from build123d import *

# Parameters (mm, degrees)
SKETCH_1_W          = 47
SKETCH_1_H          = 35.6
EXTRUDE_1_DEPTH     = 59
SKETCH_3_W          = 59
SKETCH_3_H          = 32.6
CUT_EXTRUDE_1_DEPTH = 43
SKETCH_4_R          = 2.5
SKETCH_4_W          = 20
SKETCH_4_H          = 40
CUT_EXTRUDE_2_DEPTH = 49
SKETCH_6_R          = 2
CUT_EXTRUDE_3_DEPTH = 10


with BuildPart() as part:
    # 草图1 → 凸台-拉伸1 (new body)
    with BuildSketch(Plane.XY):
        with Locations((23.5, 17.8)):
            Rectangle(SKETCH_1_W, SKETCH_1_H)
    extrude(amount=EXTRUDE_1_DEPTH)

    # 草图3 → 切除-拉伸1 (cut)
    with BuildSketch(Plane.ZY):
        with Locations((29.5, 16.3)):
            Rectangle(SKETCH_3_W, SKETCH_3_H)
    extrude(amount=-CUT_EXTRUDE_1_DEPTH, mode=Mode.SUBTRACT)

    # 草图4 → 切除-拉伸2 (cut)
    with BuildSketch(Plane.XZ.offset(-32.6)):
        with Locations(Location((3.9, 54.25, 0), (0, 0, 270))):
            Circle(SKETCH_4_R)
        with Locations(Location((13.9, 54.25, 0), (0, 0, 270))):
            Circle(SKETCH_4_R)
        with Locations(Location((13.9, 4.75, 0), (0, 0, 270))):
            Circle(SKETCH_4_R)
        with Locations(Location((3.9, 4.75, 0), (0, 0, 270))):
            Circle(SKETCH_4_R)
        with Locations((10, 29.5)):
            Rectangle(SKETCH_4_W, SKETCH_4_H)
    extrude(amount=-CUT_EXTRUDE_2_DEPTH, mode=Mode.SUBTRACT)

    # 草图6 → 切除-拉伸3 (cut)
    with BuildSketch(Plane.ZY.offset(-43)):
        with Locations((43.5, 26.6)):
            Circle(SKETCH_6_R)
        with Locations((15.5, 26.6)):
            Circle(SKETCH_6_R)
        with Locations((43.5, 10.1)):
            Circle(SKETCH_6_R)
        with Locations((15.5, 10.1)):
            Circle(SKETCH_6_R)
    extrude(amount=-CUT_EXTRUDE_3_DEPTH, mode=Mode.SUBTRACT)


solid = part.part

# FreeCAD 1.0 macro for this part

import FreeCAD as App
import Part
import Sketcher
Q = App.Units.Quantity

doc = App.newDocument("Part")
body = doc.addObject("PartDesign::Body", "Body")

sketch1 = body.newObject("Sketcher::SketchObject", "Sketch")
sketch1.AttachmentSupport = (doc.getObject("XY_Plane"), [""])
sketch1.MapMode = "FlatFace"
sketch1.addGeometry([
    Part.LineSegment(App.Vector(0, 35.6, 0), App.Vector(0, 0, 0)),
    Part.LineSegment(App.Vector(0, 0, 0), App.Vector(47, 0, 0)),
    Part.LineSegment(App.Vector(47, 0, 0), App.Vector(47, 35.6, 0)),
    Part.LineSegment(App.Vector(47, 35.6, 0), App.Vector(0, 35.6, 0)),
], False)
sketch1.addConstraint([
    Sketcher.Constraint("Coincident", 0, 2, 1, 1),
    Sketcher.Constraint("Coincident", 1, 2, 2, 1),
    Sketcher.Constraint("Coincident", 2, 2, 3, 1),
    Sketcher.Constraint("Coincident", 3, 2, 0, 1),
    Sketcher.Constraint("Vertical", 0),
    Sketcher.Constraint("Horizontal", 1),
    Sketcher.Constraint("Vertical", 2),
    Sketcher.Constraint("Horizontal", 3),
    Sketcher.Constraint("Coincident", 0, 2, -1, 1),
    Sketcher.Constraint("DistanceX", 1, 1, 1, 2, Q("47 mm")),
    Sketcher.Constraint("DistanceY", 0, 2, 0, 1, Q("35.6 mm")),
])
pad1 = body.newObject("PartDesign::Pad", "Pad")
pad1.Profile = sketch1
pad1.Length = 59

sketch2 = body.newObject("Sketcher::SketchObject", "Sketch001")
sketch2.AttachmentSupport = (doc.getObject("YZ_Plane"), [""])
sketch2.MapMode = "FlatFace"
sketch2.addGeometry([
    Part.LineSegment(App.Vector(32.6, 0, 0), App.Vector(0, 0, 0)),
    Part.LineSegment(App.Vector(0, 0, 0), App.Vector(0, 59, 0)),
    Part.LineSegment(App.Vector(0, 59, 0), App.Vector(32.6, 59, 0)),
    Part.LineSegment(App.Vector(32.6, 59, 0), App.Vector(32.6, 0, 0)),
], False)
sketch2.addConstraint([
    Sketcher.Constraint("Coincident", 0, 2, 1, 1),
    Sketcher.Constraint("Coincident", 1, 2, 2, 1),
    Sketcher.Constraint("Coincident", 2, 2, 3, 1),
    Sketcher.Constraint("Coincident", 3, 2, 0, 1),
    Sketcher.Constraint("Horizontal", 0),
    Sketcher.Constraint("Vertical", 1),
    Sketcher.Constraint("Horizontal", 2),
    Sketcher.Constraint("Vertical", 3),
    Sketcher.Constraint("Coincident", 0, 2, -1, 1),
    Sketcher.Constraint("DistanceY", 1, 1, 1, 2, Q("59 mm")),
    Sketcher.Constraint("DistanceX", 0, 2, 0, 1, Q("32.6 mm")),
])
pocket1 = body.newObject("PartDesign::Pocket", "Pocket")
pocket1.Profile = sketch2
pocket1.Length = 43
pocket1.Reversed = True

sketch3 = body.newObject("Sketcher::SketchObject", "Sketch002")
sketch3.AttachmentSupport = (doc.getObject("XZ_Plane"), [""])
sketch3.MapMode = "FlatFace"
sketch3.AttachmentOffset = App.Placement(App.Vector(0, 0, -32.6), App.Rotation())
sketch3.addGeometry([
    Part.Circle(App.Vector(3.9, 54.25, 0), App.Vector(0, 0, 1), 2.5),
    Part.Circle(App.Vector(13.9, 54.25, 0), App.Vector(0, 0, 1), 2.5),
    Part.Circle(App.Vector(13.9, 4.75, 0), App.Vector(0, 0, 1), 2.5),
    Part.Circle(App.Vector(3.9, 4.75, 0), App.Vector(0, 0, 1), 2.5),
    Part.LineSegment(App.Vector(0, 49.5, 0), App.Vector(0, 9.5, 0)),
    Part.LineSegment(App.Vector(0, 9.5, 0), App.Vector(20, 9.5, 0)),
    Part.LineSegment(App.Vector(20, 9.5, 0), App.Vector(20, 49.5, 0)),
    Part.LineSegment(App.Vector(20, 49.5, 0), App.Vector(0, 49.5, 0)),
], False)
sketch3.addConstraint([
    Sketcher.Constraint("Coincident", 4, 2, 5, 1),
    Sketcher.Constraint("Coincident", 5, 2, 6, 1),
    Sketcher.Constraint("Coincident", 6, 2, 7, 1),
    Sketcher.Constraint("Coincident", 7, 2, 4, 1),
    Sketcher.Constraint("Vertical", 4),
    Sketcher.Constraint("Horizontal", 5),
    Sketcher.Constraint("Vertical", 6),
    Sketcher.Constraint("Horizontal", 7),
    Sketcher.Constraint("Equal", 0, 1),
    Sketcher.Constraint("Equal", 1, 2),
    Sketcher.Constraint("Equal", 2, 3),
    Sketcher.Constraint("PointOnObject", 4, 2, -2),
    Sketcher.Constraint("Horizontal", 0, 3, 1, 3),
    Sketcher.Constraint("Horizontal", 2, 3, 3, 3),
    Sketcher.Constraint("Vertical", 1, 3, 2, 3),
    Sketcher.Constraint("Vertical", 0, 3, 3, 3),
    Sketcher.Constraint("Diameter", 0, Q("5 mm")),
    Sketcher.Constraint("DistanceX", 5, 1, 5, 2, Q("20 mm")),
    Sketcher.Constraint("DistanceY", 4, 2, 4, 1, Q("40 mm")),
    Sketcher.Constraint("DistanceX", 0, 3, 1, 3, Q("10 mm")),
    Sketcher.Constraint("DistanceX", -1, 1, 0, 3, Q("3.9 mm")),
    Sketcher.Constraint("DistanceY", -1, 1, 4, 2, Q("9.5 mm")),
    Sketcher.Constraint("DistanceY", 2, 3, 1, 3, Q("49.5 mm")),
    Sketcher.Constraint("DistanceY", -1, 1, 0, 3, Q("54.25 mm")),
])
pocket2 = body.newObject("PartDesign::Pocket", "Pocket001")
pocket2.Profile = sketch3
pocket2.Length = 49

sketch4 = body.newObject("Sketcher::SketchObject", "Sketch003")
sketch4.AttachmentSupport = (doc.getObject("YZ_Plane"), [""])
sketch4.MapMode = "FlatFace"
sketch4.AttachmentOffset = App.Placement(App.Vector(0, 0, 43), App.Rotation())
sketch4.addGeometry([
    Part.Circle(App.Vector(26.6, 43.5, 0), App.Vector(0, 0, 1), 2),
    Part.Circle(App.Vector(26.6, 15.5, 0), App.Vector(0, 0, 1), 2),
    Part.Circle(App.Vector(10.1, 43.5, 0), App.Vector(0, 0, 1), 2),
    Part.Circle(App.Vector(10.1, 15.5, 0), App.Vector(0, 0, 1), 2),
], False)
sketch4.addConstraint([
    Sketcher.Constraint("Equal", 0, 1),
    Sketcher.Constraint("Equal", 1, 2),
    Sketcher.Constraint("Equal", 2, 3),
    Sketcher.Constraint("Horizontal", 0, 3, 2, 3),
    Sketcher.Constraint("Horizontal", 1, 3, 3, 3),
    Sketcher.Constraint("Vertical", 0, 3, 1, 3),
    Sketcher.Constraint("Vertical", 2, 3, 3, 3),
    Sketcher.Constraint("Diameter", 0, Q("4 mm")),
    Sketcher.Constraint("DistanceY", 1, 3, 0, 3, Q("28 mm")),
    Sketcher.Constraint("DistanceX", -1, 1, 0, 3, Q("26.6 mm")),
    Sketcher.Constraint("DistanceY", -1, 1, 0, 3, Q("43.5 mm")),
    Sketcher.Constraint("DistanceX", -1, 1, 2, 3, Q("10.1 mm")),
])
pocket3 = body.newObject("PartDesign::Pocket", "Pocket002")
pocket3.Profile = sketch4
pocket3.Length = 10
pocket3.Reversed = True

doc.recompute()
